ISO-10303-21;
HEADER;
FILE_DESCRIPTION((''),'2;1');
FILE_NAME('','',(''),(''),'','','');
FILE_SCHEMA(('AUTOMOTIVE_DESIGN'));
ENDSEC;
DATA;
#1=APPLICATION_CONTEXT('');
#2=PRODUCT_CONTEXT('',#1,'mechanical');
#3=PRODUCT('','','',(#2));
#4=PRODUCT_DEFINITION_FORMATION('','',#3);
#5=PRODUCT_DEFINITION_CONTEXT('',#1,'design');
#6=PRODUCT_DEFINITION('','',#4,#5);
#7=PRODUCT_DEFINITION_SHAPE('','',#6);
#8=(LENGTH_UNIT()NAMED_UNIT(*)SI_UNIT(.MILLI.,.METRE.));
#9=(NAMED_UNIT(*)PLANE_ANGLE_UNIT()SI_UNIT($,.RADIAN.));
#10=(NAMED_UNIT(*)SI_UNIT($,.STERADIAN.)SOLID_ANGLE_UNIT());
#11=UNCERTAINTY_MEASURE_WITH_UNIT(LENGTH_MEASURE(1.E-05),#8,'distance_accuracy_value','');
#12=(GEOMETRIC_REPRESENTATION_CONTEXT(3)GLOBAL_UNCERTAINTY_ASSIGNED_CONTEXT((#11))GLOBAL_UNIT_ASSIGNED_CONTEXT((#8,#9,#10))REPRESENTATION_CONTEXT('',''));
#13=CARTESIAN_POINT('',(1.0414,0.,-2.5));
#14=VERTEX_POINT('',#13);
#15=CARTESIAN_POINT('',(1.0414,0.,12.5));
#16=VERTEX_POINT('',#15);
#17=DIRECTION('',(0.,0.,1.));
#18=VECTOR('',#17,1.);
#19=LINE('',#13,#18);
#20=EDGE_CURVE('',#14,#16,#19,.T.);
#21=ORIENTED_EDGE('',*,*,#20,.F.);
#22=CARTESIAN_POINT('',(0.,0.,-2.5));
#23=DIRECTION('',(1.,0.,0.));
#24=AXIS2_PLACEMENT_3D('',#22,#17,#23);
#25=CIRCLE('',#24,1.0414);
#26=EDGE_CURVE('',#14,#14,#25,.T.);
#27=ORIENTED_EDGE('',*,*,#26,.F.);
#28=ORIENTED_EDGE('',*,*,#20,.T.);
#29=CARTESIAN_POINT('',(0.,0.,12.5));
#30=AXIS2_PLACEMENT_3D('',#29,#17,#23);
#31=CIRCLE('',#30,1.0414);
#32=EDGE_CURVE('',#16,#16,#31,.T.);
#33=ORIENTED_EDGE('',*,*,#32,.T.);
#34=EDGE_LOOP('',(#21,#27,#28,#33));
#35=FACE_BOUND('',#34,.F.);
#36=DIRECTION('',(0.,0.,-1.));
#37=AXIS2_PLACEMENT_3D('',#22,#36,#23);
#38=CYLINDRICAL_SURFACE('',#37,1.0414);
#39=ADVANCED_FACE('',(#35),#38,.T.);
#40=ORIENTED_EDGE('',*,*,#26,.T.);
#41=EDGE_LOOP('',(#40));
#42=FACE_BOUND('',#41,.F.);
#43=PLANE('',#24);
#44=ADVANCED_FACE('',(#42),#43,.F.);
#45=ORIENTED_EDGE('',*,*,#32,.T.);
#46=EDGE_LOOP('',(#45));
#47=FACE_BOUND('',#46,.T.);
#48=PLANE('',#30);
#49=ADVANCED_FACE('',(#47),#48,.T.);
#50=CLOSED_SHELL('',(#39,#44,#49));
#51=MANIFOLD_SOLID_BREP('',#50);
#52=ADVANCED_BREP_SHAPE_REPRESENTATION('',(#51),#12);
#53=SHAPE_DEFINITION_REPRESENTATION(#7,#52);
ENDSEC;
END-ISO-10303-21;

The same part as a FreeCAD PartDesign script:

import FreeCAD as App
import Part
import Sketcher
Q = App.Units.Quantity

doc = App.newDocument("Part")
params = doc.addObject("Spreadsheet::Sheet", "Params")
for row, (alias, value) in enumerate([
    ("pad1_length", "15 mm"),
], start=1):
    params.set(f"A{row}", alias)
    params.set(f"B{row}", "=" + value)
    params.setAlias(f"B{row}", alias)

body = doc.addObject("PartDesign::Body", "Body")

# Sketch on XY plane
sketch1 = doc.addObject("Sketcher::SketchObject", "Sketch")
body.addObject(sketch1)
sketch1.AttachmentSupport = (doc.XY_Plane, [""])
sketch1.MapMode = "FlatFace"
sketch1.AttachmentOffset = App.Placement(App.Vector(0, 0, -2.5), App.Rotation())
sketch1.addGeometry(Part.Circle(App.Vector(0, 0, 0), App.Vector(0, 0, 1), 1.0414), False)
sketch1.addConstraint([
    Sketcher.Constraint("Coincident", 0, 3, -1, 1),
    Sketcher.Constraint("Diameter", 0, Q("2.0828 mm")),
])
pad1 = doc.addObject("PartDesign::Pad", "Pad")
body.addObject(pad1)
pad1.Profile = sketch1
pad1.setExpression("Length", "Params.pad1_length")

doc.recompute()
